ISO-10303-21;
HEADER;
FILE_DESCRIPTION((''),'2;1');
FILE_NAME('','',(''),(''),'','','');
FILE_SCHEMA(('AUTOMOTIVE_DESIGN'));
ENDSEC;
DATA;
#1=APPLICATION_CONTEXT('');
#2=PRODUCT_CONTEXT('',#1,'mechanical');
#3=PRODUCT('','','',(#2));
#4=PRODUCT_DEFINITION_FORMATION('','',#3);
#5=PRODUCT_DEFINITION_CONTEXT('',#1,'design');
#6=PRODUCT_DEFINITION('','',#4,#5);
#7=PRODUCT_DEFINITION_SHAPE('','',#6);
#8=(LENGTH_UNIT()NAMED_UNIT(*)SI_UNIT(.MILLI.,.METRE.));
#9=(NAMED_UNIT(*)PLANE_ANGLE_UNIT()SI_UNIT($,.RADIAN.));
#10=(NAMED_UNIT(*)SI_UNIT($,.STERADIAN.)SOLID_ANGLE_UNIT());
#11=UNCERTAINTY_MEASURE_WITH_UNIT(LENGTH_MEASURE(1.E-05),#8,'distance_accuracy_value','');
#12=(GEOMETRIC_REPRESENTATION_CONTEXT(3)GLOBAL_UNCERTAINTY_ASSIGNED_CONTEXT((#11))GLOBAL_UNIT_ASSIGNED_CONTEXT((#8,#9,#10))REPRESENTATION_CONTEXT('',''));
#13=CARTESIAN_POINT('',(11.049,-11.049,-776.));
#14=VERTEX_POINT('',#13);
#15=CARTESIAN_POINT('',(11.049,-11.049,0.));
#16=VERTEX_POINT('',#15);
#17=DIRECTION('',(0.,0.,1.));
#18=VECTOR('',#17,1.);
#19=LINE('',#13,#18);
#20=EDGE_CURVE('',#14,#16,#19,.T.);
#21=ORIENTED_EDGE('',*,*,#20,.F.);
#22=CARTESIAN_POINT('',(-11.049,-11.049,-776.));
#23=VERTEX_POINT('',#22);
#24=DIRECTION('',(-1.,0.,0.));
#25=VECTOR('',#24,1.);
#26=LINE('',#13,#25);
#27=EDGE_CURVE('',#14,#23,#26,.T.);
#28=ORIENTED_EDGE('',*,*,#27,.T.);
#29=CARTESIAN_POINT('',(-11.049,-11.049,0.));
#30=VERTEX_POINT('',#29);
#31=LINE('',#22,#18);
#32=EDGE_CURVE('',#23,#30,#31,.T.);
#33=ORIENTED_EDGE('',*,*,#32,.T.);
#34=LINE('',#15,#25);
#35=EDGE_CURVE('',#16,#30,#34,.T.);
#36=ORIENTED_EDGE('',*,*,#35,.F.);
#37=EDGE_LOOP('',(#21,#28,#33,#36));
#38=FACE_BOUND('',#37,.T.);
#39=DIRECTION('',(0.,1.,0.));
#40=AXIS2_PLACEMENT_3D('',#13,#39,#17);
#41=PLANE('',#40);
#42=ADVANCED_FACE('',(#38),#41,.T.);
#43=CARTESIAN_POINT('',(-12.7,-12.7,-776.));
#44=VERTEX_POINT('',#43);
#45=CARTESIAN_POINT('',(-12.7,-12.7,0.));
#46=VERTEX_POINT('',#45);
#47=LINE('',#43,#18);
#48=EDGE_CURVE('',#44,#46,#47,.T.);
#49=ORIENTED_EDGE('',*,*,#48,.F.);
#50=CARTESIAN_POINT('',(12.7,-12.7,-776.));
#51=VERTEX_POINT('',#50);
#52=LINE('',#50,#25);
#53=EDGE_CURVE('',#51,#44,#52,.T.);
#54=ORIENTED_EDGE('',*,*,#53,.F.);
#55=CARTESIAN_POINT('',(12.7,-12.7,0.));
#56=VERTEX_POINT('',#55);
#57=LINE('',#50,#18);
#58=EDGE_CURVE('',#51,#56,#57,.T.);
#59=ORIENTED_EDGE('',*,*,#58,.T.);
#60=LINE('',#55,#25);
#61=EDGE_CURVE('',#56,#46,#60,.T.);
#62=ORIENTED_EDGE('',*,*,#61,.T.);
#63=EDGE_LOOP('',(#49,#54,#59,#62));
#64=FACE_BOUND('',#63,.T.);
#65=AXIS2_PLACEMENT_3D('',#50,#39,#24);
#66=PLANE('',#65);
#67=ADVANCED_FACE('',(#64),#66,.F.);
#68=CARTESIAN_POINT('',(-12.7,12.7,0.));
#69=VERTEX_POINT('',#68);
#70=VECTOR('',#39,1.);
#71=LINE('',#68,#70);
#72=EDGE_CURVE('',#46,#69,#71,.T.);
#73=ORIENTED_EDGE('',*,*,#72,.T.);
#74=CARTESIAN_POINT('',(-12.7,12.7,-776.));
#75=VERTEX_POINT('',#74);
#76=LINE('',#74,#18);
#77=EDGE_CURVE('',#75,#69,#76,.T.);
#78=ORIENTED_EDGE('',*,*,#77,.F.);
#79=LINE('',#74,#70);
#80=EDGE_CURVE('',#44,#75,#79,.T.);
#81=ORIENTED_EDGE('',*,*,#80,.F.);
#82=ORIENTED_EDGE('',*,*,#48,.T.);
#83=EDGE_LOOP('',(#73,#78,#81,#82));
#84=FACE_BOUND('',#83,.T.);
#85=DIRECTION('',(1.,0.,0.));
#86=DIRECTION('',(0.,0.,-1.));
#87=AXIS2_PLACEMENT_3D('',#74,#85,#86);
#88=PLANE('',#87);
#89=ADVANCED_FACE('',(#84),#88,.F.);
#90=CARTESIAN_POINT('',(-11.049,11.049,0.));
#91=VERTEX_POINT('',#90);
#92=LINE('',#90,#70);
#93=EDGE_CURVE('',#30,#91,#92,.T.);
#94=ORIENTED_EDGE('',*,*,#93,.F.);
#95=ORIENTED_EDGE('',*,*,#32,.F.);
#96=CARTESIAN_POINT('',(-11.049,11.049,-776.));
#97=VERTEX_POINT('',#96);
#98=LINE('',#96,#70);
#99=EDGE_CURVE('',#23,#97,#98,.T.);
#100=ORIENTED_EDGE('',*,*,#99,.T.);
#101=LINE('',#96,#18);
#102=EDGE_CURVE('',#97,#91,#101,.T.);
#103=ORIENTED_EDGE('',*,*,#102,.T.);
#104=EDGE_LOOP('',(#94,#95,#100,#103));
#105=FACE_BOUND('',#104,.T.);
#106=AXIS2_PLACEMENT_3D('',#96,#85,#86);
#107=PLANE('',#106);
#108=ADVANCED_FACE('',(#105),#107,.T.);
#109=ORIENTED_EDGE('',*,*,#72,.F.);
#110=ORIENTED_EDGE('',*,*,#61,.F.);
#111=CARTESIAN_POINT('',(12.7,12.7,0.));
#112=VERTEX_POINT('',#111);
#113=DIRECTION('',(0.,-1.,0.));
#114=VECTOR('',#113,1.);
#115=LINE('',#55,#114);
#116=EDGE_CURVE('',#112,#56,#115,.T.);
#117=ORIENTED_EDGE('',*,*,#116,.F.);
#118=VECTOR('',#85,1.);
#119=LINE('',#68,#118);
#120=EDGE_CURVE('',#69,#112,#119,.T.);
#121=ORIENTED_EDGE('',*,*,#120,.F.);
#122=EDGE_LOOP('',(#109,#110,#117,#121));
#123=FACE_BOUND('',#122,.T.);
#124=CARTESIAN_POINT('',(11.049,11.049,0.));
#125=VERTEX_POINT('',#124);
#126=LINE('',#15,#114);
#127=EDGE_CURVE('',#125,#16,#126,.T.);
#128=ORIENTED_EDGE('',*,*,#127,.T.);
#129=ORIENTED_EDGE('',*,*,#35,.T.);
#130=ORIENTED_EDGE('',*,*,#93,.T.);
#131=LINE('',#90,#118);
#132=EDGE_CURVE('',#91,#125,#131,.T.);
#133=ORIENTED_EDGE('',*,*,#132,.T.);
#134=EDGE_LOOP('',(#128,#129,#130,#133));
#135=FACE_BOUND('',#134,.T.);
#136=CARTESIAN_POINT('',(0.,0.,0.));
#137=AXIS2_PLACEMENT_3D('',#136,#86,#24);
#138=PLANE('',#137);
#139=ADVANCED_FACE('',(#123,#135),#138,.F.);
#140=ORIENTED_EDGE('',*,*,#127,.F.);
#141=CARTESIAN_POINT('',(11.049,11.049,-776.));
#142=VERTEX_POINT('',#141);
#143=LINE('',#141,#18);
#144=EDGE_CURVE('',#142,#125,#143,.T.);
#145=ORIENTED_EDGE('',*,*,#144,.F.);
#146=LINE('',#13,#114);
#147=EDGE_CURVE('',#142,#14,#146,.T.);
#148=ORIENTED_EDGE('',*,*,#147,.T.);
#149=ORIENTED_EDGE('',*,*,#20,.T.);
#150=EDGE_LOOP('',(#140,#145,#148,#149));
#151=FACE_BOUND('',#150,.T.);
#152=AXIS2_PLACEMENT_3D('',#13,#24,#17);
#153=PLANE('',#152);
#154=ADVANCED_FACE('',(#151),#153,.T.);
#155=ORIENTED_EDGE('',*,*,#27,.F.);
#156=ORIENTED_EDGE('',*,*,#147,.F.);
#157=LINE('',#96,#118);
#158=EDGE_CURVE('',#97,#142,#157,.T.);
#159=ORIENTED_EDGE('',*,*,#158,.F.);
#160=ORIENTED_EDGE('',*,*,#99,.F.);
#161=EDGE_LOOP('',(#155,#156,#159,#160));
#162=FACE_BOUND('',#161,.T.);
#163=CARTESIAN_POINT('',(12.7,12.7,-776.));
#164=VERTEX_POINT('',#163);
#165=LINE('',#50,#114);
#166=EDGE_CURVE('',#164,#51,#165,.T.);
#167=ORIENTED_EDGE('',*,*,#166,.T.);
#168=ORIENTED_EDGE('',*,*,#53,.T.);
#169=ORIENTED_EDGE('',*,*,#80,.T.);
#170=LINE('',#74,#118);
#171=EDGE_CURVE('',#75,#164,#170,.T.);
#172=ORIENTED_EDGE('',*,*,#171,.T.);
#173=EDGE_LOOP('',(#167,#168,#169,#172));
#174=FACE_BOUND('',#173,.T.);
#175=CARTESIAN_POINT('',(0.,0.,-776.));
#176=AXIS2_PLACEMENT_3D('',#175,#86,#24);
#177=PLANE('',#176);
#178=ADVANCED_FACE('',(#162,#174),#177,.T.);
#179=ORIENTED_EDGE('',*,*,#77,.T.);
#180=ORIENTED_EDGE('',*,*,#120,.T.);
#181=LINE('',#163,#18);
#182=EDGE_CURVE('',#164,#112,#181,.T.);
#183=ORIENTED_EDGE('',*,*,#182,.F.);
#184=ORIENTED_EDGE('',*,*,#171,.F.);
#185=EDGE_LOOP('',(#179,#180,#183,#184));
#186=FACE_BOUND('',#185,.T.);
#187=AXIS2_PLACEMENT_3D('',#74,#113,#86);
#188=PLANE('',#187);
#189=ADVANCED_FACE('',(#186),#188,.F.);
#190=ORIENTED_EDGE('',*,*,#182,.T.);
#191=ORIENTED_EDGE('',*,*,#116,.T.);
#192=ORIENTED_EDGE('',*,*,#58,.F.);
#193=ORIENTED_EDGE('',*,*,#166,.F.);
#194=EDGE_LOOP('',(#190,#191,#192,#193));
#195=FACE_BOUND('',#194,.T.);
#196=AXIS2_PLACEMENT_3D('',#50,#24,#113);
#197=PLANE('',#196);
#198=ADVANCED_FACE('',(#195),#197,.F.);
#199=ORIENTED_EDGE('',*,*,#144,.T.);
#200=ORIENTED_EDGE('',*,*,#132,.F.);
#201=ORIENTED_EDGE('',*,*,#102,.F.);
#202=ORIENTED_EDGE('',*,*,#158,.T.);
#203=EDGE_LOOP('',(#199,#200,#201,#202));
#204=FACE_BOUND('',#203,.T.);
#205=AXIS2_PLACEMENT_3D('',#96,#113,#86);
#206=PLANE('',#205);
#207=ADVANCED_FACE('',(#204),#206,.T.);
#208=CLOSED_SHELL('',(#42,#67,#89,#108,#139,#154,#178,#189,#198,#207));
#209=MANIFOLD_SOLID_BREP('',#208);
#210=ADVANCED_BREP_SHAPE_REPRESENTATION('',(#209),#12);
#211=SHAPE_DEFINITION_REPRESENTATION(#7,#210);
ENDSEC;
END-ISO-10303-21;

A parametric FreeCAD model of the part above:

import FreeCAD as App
import Part
import Sketcher

V = App.Vector
Q = App.Units.Quantity


def add_polygon(sketch, points):
    """Adds a closed chain of lines whose ends are joined by coincident constraints."""
    first, n = sketch.GeometryCount, len(points)
    for a, b in zip(points, points[1:] + points[:1]):
        sketch.addGeometry(Part.LineSegment(App.Vector(*a, 0), App.Vector(*b, 0)), False)
    for i in range(n):
        sketch.addConstraint(Sketcher.Constraint("Coincident", first + i, 2, first + (i + 1) % n, 1))

doc = App.newDocument("Part")
params = doc.addObject("Spreadsheet::Sheet", "Params")
for row, (alias, value) in enumerate([
    ("sketch1_width", "1 in"),
    ("sketch1_width2", "0.87 in"),
    ("pad1_length", "776 mm"),
], start=1):
    params.set(f"A{row}", alias)
    params.set(f"B{row}", "=" + value)
    params.setAlias(f"B{row}", alias)

body = doc.addObject("PartDesign::Body", "Body")

# Sketch on XY plane
sketch1 = body.newObject("Sketcher::SketchObject", "Sketch")
sketch1.AttachmentSupport = (doc.getObject("XY_Plane"), [""])
sketch1.MapMode = "FlatFace"
add_polygon(sketch1, [(12.7, 12.7), (12.7, -12.7), (-12.7, -12.7), (-12.7, 12.7)])  # lines 0-3
add_polygon(sketch1, [(-11.049, -11.049), (11.049, -11.049), (11.049, 11.049), (-11.049, 11.049)])  # lines 4-7
sketch1.addConstraint(Sketcher.Constraint("Vertical", 0))
sketch1.addConstraint(Sketcher.Constraint("Horizontal", 1))
sketch1.addConstraint(Sketcher.Constraint("Vertical", 2))
sketch1.addConstraint(Sketcher.Constraint("Horizontal", 3))
sketch1.addConstraint(Sketcher.Constraint("Horizontal", 4))
sketch1.addConstraint(Sketcher.Constraint("Vertical", 5))
sketch1.addConstraint(Sketcher.Constraint("Horizontal", 6))
sketch1.addConstraint(Sketcher.Constraint("Vertical", 7))
sketch1.addConstraint(Sketcher.Constraint("Symmetric", 0, 2, 2, 2, -1, 1))
sketch1.addConstraint(Sketcher.Constraint("Symmetric", 4, 2, 6, 2, -1, 1))
sketch1.addConstraint(Sketcher.Constraint("Equal", 3, 0))
sketch1.addConstraint(Sketcher.Constraint("Equal", 6, 5))
sketch1.addConstraint(Sketcher.Constraint("DistanceX", 1, 2, 1, 1, Q("1 in")))
sketch1.addConstraint(Sketcher.Constraint("DistanceX", 4, 1, 4, 2, Q("0.87 in")))
sketch1.setExpression("Constraints[20]", "Params.sketch1_width")
sketch1.setExpression("Constraints[21]", "Params.sketch1_width2")
pad1 = body.newObject("PartDesign::Pad", "Pad")
pad1.Profile = sketch1
pad1.setExpression("Length", "Params.pad1_length")
pad1.Reversed = True

doc.recompute()
